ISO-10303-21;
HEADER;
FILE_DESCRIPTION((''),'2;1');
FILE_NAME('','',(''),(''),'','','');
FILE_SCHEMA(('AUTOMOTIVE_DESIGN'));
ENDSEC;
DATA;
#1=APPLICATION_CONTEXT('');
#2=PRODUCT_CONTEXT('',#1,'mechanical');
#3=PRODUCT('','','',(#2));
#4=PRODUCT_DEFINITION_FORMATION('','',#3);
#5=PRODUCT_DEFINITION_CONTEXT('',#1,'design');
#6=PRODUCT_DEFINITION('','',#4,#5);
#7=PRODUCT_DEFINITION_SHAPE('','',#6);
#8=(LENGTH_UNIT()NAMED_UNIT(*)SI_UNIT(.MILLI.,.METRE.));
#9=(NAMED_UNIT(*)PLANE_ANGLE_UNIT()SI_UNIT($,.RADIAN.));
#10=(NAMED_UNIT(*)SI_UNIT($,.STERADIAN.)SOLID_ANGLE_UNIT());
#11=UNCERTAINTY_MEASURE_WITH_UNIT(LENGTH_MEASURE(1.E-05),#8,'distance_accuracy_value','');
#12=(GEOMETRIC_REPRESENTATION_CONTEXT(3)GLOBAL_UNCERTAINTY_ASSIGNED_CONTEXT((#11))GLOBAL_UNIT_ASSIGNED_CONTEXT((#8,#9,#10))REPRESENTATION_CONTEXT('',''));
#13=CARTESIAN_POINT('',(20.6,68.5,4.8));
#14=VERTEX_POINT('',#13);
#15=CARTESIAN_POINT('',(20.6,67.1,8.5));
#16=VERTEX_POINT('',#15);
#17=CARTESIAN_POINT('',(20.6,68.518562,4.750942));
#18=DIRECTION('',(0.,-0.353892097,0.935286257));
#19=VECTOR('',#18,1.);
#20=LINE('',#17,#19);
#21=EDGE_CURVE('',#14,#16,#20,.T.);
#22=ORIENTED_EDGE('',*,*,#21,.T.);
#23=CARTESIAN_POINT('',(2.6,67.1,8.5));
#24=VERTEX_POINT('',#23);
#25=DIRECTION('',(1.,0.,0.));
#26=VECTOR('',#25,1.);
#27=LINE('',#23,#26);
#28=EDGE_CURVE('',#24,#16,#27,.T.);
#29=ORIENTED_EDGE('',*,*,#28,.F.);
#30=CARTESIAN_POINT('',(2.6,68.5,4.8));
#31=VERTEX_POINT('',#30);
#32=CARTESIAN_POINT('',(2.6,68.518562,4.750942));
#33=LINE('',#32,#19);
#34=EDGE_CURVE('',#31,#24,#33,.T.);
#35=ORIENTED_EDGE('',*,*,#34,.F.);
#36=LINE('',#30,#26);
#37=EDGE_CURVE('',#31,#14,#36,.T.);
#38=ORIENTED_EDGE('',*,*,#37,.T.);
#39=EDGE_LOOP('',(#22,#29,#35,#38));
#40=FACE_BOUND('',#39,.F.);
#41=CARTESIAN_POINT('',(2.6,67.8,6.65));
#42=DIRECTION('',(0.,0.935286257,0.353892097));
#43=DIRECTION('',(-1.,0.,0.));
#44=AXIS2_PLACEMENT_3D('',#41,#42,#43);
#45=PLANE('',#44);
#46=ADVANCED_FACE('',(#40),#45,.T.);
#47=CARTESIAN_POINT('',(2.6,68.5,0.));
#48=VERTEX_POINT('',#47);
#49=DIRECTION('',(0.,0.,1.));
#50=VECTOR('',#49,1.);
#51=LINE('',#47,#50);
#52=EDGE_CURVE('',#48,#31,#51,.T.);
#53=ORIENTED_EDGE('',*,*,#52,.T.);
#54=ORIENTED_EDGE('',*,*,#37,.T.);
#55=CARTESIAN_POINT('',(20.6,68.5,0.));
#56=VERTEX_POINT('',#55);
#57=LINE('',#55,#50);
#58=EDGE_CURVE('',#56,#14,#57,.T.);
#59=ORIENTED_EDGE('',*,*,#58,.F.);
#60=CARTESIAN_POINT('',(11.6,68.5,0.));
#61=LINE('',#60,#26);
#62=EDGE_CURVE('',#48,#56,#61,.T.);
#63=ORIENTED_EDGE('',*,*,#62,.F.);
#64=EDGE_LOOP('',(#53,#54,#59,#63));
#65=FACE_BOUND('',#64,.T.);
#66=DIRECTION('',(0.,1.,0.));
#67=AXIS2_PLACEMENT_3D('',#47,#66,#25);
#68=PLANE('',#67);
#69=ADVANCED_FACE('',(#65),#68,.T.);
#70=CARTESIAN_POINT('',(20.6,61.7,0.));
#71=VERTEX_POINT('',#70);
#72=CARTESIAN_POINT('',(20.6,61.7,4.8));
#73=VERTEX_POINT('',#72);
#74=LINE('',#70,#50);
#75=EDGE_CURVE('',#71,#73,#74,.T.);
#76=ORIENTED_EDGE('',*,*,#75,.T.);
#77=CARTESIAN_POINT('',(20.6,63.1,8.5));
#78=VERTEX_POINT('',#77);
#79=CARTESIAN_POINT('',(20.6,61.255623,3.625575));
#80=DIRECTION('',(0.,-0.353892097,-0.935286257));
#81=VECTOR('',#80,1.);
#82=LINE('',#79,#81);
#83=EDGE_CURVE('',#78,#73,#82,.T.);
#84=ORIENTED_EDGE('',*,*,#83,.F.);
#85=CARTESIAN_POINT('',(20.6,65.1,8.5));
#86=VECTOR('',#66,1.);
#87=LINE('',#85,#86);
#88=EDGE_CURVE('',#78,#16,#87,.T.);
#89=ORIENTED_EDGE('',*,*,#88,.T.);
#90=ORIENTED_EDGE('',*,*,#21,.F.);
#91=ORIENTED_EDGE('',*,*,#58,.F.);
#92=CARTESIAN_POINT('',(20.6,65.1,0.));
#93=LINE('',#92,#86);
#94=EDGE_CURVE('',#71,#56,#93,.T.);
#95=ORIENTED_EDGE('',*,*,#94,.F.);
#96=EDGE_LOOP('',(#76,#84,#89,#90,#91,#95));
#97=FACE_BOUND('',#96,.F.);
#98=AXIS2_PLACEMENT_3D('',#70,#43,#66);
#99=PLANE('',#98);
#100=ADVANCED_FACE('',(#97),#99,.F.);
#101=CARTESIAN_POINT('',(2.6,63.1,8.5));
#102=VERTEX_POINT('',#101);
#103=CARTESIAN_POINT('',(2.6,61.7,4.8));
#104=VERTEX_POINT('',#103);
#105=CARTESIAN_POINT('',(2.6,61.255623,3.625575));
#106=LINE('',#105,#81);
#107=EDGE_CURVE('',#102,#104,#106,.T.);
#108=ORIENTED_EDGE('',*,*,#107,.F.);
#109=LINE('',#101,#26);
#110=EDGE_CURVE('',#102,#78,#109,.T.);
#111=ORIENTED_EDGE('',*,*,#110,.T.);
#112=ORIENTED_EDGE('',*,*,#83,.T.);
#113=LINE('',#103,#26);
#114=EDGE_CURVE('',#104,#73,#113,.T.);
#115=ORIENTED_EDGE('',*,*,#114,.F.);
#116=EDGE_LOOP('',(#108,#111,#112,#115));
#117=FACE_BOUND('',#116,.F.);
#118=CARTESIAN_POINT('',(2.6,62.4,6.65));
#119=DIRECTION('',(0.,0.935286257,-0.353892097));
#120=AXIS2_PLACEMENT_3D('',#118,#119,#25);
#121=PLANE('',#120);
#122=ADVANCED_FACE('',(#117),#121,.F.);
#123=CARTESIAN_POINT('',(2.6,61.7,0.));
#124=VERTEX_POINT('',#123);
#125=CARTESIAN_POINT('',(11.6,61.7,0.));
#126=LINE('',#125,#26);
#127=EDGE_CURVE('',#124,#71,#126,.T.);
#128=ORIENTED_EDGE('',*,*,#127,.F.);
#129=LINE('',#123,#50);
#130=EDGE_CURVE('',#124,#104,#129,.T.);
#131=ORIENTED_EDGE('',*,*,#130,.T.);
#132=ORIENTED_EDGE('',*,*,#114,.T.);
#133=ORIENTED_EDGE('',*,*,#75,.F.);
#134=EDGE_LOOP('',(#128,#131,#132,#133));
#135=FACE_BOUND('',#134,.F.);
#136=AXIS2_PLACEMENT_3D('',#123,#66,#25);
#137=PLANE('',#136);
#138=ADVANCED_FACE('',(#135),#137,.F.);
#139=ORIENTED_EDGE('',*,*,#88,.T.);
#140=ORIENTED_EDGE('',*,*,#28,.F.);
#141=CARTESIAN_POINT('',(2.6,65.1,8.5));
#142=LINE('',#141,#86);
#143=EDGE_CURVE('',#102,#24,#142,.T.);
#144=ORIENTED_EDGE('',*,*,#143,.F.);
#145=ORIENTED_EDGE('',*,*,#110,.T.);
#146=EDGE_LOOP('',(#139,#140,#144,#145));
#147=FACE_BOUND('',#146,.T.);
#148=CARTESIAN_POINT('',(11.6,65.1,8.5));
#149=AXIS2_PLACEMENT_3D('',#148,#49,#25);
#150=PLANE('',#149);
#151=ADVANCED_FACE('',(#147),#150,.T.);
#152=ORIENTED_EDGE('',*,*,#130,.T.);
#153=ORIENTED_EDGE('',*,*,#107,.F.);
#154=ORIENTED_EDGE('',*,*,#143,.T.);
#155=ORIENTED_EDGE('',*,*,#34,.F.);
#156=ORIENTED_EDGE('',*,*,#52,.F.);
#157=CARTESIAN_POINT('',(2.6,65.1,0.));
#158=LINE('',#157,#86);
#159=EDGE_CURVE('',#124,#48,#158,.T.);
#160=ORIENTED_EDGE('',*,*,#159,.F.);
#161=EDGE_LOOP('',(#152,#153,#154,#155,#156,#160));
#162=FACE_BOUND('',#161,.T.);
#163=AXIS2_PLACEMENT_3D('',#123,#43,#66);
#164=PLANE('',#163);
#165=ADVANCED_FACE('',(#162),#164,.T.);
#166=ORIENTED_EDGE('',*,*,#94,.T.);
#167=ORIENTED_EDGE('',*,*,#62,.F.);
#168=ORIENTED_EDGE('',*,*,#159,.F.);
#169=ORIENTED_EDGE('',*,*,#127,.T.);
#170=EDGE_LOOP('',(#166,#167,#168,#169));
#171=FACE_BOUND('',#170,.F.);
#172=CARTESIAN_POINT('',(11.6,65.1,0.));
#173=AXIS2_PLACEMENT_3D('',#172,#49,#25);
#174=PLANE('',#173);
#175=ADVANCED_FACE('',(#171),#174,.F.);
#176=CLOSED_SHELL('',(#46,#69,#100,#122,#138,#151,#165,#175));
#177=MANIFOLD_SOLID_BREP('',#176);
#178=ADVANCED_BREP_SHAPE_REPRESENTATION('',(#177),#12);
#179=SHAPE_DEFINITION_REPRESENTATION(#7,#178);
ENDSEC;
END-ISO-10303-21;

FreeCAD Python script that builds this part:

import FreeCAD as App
import Part
import Sketcher

V = App.Vector
Q = App.Units.Quantity


def edges_at(feature, points):
    """Names of the edges that pass closest to the given points."""
    edges = feature.Shape.Edges
    near = lambda p: min(range(len(edges)), key=lambda i: edges[i].distToShape(Part.Vertex(*p))[0])
    return sorted({f"Edge{near(p) + 1}" for p in points})


def add_polygon(sketch, points):
    """Adds a closed chain of lines whose ends are joined by coincident constraints."""
    first, n = sketch.GeometryCount, len(points)
    for a, b in zip(points, points[1:] + points[:1]):
        sketch.addGeometry(Part.LineSegment(App.Vector(*a, 0), App.Vector(*b, 0)), False)
    for i in range(n):
        sketch.addConstraint(Sketcher.Constraint("Coincident", first + i, 2, first + (i + 1) % n, 1))

doc = App.newDocument("Part")
body = doc.addObject("PartDesign::Body", "Body")

sketch1 = body.newObject("Sketcher::SketchObject", "Sketch")
sketch1.AttachmentSupport = (doc.getObject("XY_Plane"), [""])
sketch1.MapMode = "FlatFace"
add_polygon(sketch1, [(29.3, 68.5), (29.3, 61.7), (47.3, 61.7), (47.3, 68.5)])
sketch1.addConstraint(Sketcher.Constraint("Vertical", 0))
sketch1.addConstraint(Sketcher.Constraint("Horizontal", 1))
sketch1.addConstraint(Sketcher.Constraint("Vertical", 2))
sketch1.addConstraint(Sketcher.Constraint("Horizontal", 3))
sketch1.addConstraint(Sketcher.Constraint("DistanceX", 1, 1, 1, 2, Q("18 mm")))
sketch1.addConstraint(Sketcher.Constraint("DistanceY", 0, 2, 0, 1, Q("6.8 mm")))
sketch1.addConstraint(Sketcher.Constraint("DistanceX", -1, 1, 0, 2, Q("29.3 mm")))
sketch1.addConstraint(Sketcher.Constraint("DistanceY", -1, 1, 0, 2, Q("61.7 mm")))
pad1 = body.newObject("PartDesign::Pad", "Pad")
pad1.Profile = sketch1
pad1.Length = 8.5
doc.recompute()

chamfer = body.newObject("PartDesign::Chamfer", "Chamfer")
chamfer.Base = (pad1, edges_at(pad1, [(38.3, 68.5, 8.5)]))
chamfer.ChamferType = "Two distances"
chamfer.Size = 3.7
chamfer.Size2 = 1.4
doc.recompute()

chamfer2 = body.newObject("PartDesign::Chamfer", "Chamfer001")
chamfer2.Base = (chamfer, edges_at(chamfer, [(38.3, 61.7, 8.5)]))
chamfer2.ChamferType = "Two distances"
chamfer2.Size = 1.4
chamfer2.Size2 = 3.7
body2 = doc.addObject("PartDesign::Body", "Body001")
doc.recompute()

body.Placement = App.Placement(V(-26.7, 0, 0), App.Rotation(V(0, 0, 1), 0))
boolean = body2.newObject("PartDesign::Boolean", "Boolean")
boolean.Type = "Fuse"
boolean.addObjects([body])

doc.recompute()
